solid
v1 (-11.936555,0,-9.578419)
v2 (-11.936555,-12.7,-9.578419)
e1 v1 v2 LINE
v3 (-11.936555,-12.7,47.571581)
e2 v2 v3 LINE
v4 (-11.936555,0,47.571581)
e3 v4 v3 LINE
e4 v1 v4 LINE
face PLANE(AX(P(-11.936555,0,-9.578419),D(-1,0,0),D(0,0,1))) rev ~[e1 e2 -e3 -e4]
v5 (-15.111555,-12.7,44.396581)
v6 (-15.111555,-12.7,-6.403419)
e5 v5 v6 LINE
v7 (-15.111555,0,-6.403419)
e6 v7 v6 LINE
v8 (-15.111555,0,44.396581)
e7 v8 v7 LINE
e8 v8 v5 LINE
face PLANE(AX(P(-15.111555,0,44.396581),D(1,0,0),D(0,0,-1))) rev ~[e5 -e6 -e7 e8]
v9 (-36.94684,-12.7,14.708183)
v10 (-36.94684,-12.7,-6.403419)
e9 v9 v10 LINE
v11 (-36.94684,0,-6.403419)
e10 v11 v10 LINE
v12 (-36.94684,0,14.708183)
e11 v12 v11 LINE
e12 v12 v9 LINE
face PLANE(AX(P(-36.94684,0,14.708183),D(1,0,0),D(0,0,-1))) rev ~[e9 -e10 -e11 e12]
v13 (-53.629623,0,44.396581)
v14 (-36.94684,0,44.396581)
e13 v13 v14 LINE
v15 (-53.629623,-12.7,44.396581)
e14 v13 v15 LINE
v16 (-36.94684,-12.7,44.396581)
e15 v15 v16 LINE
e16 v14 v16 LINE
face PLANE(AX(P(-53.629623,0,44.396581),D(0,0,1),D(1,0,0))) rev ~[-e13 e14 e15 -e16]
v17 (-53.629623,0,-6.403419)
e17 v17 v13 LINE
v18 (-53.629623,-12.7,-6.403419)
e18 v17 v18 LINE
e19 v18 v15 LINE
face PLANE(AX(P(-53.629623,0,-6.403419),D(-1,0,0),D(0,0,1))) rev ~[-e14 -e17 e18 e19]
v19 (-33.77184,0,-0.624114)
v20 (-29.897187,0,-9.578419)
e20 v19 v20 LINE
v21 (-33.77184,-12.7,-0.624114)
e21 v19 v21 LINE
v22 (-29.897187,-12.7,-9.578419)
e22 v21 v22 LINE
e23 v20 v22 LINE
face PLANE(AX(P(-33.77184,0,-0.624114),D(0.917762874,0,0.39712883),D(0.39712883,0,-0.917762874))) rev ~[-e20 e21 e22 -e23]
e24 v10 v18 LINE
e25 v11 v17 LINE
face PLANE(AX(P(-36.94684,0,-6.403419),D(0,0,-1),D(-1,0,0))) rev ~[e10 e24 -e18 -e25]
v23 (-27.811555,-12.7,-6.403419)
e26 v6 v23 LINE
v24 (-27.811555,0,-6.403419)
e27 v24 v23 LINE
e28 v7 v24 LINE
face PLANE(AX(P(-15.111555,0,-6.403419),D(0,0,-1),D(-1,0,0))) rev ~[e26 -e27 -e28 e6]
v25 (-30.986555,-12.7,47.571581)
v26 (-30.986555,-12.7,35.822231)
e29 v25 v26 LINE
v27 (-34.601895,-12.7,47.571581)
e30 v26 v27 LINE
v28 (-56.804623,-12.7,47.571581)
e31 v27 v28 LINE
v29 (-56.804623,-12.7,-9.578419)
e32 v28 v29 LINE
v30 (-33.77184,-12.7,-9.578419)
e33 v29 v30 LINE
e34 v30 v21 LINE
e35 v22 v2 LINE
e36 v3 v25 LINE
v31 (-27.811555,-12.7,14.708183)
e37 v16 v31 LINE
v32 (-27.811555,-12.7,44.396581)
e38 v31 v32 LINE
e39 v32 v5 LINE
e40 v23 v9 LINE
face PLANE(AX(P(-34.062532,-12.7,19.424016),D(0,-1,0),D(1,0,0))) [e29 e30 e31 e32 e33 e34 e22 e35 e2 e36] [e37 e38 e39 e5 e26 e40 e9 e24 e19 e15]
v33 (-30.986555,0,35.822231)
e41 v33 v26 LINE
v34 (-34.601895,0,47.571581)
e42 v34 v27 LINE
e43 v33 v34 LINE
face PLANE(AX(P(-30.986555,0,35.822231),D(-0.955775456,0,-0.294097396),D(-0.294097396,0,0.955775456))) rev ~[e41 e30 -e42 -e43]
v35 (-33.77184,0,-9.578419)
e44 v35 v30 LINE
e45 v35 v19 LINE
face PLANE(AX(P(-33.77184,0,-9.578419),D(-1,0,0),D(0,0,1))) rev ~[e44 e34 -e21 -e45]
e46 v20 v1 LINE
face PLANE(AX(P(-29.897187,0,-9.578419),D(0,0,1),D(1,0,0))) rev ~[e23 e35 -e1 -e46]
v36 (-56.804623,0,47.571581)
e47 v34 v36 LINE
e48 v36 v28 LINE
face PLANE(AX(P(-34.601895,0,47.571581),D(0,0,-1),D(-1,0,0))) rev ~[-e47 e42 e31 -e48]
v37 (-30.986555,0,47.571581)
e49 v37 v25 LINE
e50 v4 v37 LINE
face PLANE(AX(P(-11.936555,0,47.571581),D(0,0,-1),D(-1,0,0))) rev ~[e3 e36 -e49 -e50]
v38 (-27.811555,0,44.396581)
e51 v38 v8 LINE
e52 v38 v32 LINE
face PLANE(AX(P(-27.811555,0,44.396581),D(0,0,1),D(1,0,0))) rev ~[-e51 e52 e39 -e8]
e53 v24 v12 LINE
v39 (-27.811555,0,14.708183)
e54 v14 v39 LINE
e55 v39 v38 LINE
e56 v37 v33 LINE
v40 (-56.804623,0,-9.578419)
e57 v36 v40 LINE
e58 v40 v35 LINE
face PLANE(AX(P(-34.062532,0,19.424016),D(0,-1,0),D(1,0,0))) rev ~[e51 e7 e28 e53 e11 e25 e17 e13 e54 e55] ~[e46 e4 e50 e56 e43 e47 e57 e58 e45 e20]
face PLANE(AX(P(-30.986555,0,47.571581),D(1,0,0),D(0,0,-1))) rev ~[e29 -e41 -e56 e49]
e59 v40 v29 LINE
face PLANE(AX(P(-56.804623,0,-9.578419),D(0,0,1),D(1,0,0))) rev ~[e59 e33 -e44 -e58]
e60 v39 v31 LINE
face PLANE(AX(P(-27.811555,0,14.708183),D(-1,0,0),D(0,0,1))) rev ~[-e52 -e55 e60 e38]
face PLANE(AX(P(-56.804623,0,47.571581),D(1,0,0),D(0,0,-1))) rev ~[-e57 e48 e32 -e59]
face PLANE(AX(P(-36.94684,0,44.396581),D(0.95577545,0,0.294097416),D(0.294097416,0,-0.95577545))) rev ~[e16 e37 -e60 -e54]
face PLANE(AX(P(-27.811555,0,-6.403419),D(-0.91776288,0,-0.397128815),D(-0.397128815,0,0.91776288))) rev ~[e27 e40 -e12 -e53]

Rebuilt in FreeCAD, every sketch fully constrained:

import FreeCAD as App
import Part
import Sketcher

V = App.Vector
Q = App.Units.Quantity


def add_polygon(sketch, points):
    """Adds a closed chain of lines whose ends are joined by coincident constraints."""
    first, n = sketch.GeometryCount, len(points)
    for a, b in zip(points, points[1:] + points[:1]):
        sketch.addGeometry(Part.LineSegment(App.Vector(*a, 0), App.Vector(*b, 0)), False)
    for i in range(n):
        sketch.addConstraint(Sketcher.Constraint("Coincident", first + i, 2, first + (i + 1) % n, 1))

doc = App.newDocument("Part")
body = doc.addObject("PartDesign::Body", "Body")

# Sketch on XZ plane
sketch1 = body.newObject("Sketcher::SketchObject", "Sketch")
sketch1.AttachmentSupport = (doc.getObject("XZ_Plane"), [""])
sketch1.MapMode = "FlatFace"
add_polygon(sketch1, [(-34.601895, 47.571581), (-56.804623, 47.571581), (-56.804623, -9.578419), (-33.77184, -9.578419), (-33.77184, -0.624114), (-29.897187, -9.578419), (-11.936555, -9.578419), (-11.936555, 47.571581), (-30.986555, 47.571581), (-30.986555, 35.822231)])  # lines 0-9
add_polygon(sketch1, [(-36.94684, 14.708183), (-36.94684, -6.403419), (-53.629623, -6.403419), (-53.629623, 44.396581), (-36.94684, 44.396581), (-27.811555, 14.708183), (-27.811555, 44.396581), (-15.111555, 44.396581), (-15.111555, -6.403419), (-27.811555, -6.403419)])  # lines 10-19
sketch1.addConstraint([
    Sketcher.Constraint("Horizontal", 0),
    Sketcher.Constraint("Vertical", 1),
    Sketcher.Constraint("Horizontal", 2),
    Sketcher.Constraint("Vertical", 3),
    Sketcher.Constraint("Horizontal", 5),
    Sketcher.Constraint("Vertical", 6),
    Sketcher.Constraint("Horizontal", 7),
    Sketcher.Constraint("Vertical", 8),
    Sketcher.Constraint("Vertical", 10),
    Sketcher.Constraint("Horizontal", 11),
    Sketcher.Constraint("Vertical", 12),
    Sketcher.Constraint("Horizontal", 13),
    Sketcher.Constraint("Vertical", 15),
    Sketcher.Constraint("Horizontal", 16),
    Sketcher.Constraint("Vertical", 17),
    Sketcher.Constraint("Horizontal", 18),
    Sketcher.Constraint("Parallel", 9, 14),
    Sketcher.Constraint("Parallel", 4, 19),
    Sketcher.Constraint("Horizontal", 2, 2, 4, 2),
    Sketcher.Constraint("Horizontal", 0, 2, 6, 2),
    Sketcher.Constraint("Horizontal", 13, 2, 15, 2),
    Sketcher.Constraint("Horizontal", 11, 2, 17, 2),
    Sketcher.Constraint("Horizontal", 14, 2, 19, 2),
    Sketcher.Constraint("Vertical", 10, 2, 13, 2),
    Sketcher.Constraint("Vertical", 15, 2, 18, 2),
    Sketcher.Constraint("DistanceY", 12, 1, 12, 2, Q("2 in")),
    Sketcher.Constraint("DistanceX", 16, 1, 16, 2, Q("0.5 in")),
    Sketcher.Constraint("DistanceX", 7, 2, 7, 1, Q("0.75 in")),
    Sketcher.Constraint("DistanceY", 1, 2, 1, 1, Q("2.25 in")),
    Sketcher.Constraint("DistanceX", 10, 2, 2, 2, Q("0.125 in")),
    Sketcher.Constraint("DistanceY", 2, 2, 10, 2, Q("0.125 in")),
    Sketcher.Constraint("DistanceX", 1, 2, 11, 2, Q("0.125 in")),
    Sketcher.Constraint("DistanceX", 8, 2, 14, 2, Q("0.125 in")),
    Sketcher.Constraint("DistanceX", 2, 2, -1, 1, Q("1.3296 in")),
    Sketcher.Constraint("DistanceX", 0, 2, 0, 1, 22.202728),
    Sketcher.Constraint("DistanceX", 5, 1, 5, 2, 17.960632),
    Sketcher.Constraint("DistanceY", 8, 2, 8, 1, 11.74935),
    Sketcher.Constraint("Distance", 19, 23.00333),
    Sketcher.Constraint("DistanceX", 2, 1, 2, 2, 23.032783),
    Sketcher.Constraint("DistanceY", -1, 1, 0, 2, 47.571581),
])
pad1 = body.newObject("PartDesign::Pad", "Pad")
pad1.Profile = sketch1
pad1.Length = Q("0.5 in")

doc.recompute()
